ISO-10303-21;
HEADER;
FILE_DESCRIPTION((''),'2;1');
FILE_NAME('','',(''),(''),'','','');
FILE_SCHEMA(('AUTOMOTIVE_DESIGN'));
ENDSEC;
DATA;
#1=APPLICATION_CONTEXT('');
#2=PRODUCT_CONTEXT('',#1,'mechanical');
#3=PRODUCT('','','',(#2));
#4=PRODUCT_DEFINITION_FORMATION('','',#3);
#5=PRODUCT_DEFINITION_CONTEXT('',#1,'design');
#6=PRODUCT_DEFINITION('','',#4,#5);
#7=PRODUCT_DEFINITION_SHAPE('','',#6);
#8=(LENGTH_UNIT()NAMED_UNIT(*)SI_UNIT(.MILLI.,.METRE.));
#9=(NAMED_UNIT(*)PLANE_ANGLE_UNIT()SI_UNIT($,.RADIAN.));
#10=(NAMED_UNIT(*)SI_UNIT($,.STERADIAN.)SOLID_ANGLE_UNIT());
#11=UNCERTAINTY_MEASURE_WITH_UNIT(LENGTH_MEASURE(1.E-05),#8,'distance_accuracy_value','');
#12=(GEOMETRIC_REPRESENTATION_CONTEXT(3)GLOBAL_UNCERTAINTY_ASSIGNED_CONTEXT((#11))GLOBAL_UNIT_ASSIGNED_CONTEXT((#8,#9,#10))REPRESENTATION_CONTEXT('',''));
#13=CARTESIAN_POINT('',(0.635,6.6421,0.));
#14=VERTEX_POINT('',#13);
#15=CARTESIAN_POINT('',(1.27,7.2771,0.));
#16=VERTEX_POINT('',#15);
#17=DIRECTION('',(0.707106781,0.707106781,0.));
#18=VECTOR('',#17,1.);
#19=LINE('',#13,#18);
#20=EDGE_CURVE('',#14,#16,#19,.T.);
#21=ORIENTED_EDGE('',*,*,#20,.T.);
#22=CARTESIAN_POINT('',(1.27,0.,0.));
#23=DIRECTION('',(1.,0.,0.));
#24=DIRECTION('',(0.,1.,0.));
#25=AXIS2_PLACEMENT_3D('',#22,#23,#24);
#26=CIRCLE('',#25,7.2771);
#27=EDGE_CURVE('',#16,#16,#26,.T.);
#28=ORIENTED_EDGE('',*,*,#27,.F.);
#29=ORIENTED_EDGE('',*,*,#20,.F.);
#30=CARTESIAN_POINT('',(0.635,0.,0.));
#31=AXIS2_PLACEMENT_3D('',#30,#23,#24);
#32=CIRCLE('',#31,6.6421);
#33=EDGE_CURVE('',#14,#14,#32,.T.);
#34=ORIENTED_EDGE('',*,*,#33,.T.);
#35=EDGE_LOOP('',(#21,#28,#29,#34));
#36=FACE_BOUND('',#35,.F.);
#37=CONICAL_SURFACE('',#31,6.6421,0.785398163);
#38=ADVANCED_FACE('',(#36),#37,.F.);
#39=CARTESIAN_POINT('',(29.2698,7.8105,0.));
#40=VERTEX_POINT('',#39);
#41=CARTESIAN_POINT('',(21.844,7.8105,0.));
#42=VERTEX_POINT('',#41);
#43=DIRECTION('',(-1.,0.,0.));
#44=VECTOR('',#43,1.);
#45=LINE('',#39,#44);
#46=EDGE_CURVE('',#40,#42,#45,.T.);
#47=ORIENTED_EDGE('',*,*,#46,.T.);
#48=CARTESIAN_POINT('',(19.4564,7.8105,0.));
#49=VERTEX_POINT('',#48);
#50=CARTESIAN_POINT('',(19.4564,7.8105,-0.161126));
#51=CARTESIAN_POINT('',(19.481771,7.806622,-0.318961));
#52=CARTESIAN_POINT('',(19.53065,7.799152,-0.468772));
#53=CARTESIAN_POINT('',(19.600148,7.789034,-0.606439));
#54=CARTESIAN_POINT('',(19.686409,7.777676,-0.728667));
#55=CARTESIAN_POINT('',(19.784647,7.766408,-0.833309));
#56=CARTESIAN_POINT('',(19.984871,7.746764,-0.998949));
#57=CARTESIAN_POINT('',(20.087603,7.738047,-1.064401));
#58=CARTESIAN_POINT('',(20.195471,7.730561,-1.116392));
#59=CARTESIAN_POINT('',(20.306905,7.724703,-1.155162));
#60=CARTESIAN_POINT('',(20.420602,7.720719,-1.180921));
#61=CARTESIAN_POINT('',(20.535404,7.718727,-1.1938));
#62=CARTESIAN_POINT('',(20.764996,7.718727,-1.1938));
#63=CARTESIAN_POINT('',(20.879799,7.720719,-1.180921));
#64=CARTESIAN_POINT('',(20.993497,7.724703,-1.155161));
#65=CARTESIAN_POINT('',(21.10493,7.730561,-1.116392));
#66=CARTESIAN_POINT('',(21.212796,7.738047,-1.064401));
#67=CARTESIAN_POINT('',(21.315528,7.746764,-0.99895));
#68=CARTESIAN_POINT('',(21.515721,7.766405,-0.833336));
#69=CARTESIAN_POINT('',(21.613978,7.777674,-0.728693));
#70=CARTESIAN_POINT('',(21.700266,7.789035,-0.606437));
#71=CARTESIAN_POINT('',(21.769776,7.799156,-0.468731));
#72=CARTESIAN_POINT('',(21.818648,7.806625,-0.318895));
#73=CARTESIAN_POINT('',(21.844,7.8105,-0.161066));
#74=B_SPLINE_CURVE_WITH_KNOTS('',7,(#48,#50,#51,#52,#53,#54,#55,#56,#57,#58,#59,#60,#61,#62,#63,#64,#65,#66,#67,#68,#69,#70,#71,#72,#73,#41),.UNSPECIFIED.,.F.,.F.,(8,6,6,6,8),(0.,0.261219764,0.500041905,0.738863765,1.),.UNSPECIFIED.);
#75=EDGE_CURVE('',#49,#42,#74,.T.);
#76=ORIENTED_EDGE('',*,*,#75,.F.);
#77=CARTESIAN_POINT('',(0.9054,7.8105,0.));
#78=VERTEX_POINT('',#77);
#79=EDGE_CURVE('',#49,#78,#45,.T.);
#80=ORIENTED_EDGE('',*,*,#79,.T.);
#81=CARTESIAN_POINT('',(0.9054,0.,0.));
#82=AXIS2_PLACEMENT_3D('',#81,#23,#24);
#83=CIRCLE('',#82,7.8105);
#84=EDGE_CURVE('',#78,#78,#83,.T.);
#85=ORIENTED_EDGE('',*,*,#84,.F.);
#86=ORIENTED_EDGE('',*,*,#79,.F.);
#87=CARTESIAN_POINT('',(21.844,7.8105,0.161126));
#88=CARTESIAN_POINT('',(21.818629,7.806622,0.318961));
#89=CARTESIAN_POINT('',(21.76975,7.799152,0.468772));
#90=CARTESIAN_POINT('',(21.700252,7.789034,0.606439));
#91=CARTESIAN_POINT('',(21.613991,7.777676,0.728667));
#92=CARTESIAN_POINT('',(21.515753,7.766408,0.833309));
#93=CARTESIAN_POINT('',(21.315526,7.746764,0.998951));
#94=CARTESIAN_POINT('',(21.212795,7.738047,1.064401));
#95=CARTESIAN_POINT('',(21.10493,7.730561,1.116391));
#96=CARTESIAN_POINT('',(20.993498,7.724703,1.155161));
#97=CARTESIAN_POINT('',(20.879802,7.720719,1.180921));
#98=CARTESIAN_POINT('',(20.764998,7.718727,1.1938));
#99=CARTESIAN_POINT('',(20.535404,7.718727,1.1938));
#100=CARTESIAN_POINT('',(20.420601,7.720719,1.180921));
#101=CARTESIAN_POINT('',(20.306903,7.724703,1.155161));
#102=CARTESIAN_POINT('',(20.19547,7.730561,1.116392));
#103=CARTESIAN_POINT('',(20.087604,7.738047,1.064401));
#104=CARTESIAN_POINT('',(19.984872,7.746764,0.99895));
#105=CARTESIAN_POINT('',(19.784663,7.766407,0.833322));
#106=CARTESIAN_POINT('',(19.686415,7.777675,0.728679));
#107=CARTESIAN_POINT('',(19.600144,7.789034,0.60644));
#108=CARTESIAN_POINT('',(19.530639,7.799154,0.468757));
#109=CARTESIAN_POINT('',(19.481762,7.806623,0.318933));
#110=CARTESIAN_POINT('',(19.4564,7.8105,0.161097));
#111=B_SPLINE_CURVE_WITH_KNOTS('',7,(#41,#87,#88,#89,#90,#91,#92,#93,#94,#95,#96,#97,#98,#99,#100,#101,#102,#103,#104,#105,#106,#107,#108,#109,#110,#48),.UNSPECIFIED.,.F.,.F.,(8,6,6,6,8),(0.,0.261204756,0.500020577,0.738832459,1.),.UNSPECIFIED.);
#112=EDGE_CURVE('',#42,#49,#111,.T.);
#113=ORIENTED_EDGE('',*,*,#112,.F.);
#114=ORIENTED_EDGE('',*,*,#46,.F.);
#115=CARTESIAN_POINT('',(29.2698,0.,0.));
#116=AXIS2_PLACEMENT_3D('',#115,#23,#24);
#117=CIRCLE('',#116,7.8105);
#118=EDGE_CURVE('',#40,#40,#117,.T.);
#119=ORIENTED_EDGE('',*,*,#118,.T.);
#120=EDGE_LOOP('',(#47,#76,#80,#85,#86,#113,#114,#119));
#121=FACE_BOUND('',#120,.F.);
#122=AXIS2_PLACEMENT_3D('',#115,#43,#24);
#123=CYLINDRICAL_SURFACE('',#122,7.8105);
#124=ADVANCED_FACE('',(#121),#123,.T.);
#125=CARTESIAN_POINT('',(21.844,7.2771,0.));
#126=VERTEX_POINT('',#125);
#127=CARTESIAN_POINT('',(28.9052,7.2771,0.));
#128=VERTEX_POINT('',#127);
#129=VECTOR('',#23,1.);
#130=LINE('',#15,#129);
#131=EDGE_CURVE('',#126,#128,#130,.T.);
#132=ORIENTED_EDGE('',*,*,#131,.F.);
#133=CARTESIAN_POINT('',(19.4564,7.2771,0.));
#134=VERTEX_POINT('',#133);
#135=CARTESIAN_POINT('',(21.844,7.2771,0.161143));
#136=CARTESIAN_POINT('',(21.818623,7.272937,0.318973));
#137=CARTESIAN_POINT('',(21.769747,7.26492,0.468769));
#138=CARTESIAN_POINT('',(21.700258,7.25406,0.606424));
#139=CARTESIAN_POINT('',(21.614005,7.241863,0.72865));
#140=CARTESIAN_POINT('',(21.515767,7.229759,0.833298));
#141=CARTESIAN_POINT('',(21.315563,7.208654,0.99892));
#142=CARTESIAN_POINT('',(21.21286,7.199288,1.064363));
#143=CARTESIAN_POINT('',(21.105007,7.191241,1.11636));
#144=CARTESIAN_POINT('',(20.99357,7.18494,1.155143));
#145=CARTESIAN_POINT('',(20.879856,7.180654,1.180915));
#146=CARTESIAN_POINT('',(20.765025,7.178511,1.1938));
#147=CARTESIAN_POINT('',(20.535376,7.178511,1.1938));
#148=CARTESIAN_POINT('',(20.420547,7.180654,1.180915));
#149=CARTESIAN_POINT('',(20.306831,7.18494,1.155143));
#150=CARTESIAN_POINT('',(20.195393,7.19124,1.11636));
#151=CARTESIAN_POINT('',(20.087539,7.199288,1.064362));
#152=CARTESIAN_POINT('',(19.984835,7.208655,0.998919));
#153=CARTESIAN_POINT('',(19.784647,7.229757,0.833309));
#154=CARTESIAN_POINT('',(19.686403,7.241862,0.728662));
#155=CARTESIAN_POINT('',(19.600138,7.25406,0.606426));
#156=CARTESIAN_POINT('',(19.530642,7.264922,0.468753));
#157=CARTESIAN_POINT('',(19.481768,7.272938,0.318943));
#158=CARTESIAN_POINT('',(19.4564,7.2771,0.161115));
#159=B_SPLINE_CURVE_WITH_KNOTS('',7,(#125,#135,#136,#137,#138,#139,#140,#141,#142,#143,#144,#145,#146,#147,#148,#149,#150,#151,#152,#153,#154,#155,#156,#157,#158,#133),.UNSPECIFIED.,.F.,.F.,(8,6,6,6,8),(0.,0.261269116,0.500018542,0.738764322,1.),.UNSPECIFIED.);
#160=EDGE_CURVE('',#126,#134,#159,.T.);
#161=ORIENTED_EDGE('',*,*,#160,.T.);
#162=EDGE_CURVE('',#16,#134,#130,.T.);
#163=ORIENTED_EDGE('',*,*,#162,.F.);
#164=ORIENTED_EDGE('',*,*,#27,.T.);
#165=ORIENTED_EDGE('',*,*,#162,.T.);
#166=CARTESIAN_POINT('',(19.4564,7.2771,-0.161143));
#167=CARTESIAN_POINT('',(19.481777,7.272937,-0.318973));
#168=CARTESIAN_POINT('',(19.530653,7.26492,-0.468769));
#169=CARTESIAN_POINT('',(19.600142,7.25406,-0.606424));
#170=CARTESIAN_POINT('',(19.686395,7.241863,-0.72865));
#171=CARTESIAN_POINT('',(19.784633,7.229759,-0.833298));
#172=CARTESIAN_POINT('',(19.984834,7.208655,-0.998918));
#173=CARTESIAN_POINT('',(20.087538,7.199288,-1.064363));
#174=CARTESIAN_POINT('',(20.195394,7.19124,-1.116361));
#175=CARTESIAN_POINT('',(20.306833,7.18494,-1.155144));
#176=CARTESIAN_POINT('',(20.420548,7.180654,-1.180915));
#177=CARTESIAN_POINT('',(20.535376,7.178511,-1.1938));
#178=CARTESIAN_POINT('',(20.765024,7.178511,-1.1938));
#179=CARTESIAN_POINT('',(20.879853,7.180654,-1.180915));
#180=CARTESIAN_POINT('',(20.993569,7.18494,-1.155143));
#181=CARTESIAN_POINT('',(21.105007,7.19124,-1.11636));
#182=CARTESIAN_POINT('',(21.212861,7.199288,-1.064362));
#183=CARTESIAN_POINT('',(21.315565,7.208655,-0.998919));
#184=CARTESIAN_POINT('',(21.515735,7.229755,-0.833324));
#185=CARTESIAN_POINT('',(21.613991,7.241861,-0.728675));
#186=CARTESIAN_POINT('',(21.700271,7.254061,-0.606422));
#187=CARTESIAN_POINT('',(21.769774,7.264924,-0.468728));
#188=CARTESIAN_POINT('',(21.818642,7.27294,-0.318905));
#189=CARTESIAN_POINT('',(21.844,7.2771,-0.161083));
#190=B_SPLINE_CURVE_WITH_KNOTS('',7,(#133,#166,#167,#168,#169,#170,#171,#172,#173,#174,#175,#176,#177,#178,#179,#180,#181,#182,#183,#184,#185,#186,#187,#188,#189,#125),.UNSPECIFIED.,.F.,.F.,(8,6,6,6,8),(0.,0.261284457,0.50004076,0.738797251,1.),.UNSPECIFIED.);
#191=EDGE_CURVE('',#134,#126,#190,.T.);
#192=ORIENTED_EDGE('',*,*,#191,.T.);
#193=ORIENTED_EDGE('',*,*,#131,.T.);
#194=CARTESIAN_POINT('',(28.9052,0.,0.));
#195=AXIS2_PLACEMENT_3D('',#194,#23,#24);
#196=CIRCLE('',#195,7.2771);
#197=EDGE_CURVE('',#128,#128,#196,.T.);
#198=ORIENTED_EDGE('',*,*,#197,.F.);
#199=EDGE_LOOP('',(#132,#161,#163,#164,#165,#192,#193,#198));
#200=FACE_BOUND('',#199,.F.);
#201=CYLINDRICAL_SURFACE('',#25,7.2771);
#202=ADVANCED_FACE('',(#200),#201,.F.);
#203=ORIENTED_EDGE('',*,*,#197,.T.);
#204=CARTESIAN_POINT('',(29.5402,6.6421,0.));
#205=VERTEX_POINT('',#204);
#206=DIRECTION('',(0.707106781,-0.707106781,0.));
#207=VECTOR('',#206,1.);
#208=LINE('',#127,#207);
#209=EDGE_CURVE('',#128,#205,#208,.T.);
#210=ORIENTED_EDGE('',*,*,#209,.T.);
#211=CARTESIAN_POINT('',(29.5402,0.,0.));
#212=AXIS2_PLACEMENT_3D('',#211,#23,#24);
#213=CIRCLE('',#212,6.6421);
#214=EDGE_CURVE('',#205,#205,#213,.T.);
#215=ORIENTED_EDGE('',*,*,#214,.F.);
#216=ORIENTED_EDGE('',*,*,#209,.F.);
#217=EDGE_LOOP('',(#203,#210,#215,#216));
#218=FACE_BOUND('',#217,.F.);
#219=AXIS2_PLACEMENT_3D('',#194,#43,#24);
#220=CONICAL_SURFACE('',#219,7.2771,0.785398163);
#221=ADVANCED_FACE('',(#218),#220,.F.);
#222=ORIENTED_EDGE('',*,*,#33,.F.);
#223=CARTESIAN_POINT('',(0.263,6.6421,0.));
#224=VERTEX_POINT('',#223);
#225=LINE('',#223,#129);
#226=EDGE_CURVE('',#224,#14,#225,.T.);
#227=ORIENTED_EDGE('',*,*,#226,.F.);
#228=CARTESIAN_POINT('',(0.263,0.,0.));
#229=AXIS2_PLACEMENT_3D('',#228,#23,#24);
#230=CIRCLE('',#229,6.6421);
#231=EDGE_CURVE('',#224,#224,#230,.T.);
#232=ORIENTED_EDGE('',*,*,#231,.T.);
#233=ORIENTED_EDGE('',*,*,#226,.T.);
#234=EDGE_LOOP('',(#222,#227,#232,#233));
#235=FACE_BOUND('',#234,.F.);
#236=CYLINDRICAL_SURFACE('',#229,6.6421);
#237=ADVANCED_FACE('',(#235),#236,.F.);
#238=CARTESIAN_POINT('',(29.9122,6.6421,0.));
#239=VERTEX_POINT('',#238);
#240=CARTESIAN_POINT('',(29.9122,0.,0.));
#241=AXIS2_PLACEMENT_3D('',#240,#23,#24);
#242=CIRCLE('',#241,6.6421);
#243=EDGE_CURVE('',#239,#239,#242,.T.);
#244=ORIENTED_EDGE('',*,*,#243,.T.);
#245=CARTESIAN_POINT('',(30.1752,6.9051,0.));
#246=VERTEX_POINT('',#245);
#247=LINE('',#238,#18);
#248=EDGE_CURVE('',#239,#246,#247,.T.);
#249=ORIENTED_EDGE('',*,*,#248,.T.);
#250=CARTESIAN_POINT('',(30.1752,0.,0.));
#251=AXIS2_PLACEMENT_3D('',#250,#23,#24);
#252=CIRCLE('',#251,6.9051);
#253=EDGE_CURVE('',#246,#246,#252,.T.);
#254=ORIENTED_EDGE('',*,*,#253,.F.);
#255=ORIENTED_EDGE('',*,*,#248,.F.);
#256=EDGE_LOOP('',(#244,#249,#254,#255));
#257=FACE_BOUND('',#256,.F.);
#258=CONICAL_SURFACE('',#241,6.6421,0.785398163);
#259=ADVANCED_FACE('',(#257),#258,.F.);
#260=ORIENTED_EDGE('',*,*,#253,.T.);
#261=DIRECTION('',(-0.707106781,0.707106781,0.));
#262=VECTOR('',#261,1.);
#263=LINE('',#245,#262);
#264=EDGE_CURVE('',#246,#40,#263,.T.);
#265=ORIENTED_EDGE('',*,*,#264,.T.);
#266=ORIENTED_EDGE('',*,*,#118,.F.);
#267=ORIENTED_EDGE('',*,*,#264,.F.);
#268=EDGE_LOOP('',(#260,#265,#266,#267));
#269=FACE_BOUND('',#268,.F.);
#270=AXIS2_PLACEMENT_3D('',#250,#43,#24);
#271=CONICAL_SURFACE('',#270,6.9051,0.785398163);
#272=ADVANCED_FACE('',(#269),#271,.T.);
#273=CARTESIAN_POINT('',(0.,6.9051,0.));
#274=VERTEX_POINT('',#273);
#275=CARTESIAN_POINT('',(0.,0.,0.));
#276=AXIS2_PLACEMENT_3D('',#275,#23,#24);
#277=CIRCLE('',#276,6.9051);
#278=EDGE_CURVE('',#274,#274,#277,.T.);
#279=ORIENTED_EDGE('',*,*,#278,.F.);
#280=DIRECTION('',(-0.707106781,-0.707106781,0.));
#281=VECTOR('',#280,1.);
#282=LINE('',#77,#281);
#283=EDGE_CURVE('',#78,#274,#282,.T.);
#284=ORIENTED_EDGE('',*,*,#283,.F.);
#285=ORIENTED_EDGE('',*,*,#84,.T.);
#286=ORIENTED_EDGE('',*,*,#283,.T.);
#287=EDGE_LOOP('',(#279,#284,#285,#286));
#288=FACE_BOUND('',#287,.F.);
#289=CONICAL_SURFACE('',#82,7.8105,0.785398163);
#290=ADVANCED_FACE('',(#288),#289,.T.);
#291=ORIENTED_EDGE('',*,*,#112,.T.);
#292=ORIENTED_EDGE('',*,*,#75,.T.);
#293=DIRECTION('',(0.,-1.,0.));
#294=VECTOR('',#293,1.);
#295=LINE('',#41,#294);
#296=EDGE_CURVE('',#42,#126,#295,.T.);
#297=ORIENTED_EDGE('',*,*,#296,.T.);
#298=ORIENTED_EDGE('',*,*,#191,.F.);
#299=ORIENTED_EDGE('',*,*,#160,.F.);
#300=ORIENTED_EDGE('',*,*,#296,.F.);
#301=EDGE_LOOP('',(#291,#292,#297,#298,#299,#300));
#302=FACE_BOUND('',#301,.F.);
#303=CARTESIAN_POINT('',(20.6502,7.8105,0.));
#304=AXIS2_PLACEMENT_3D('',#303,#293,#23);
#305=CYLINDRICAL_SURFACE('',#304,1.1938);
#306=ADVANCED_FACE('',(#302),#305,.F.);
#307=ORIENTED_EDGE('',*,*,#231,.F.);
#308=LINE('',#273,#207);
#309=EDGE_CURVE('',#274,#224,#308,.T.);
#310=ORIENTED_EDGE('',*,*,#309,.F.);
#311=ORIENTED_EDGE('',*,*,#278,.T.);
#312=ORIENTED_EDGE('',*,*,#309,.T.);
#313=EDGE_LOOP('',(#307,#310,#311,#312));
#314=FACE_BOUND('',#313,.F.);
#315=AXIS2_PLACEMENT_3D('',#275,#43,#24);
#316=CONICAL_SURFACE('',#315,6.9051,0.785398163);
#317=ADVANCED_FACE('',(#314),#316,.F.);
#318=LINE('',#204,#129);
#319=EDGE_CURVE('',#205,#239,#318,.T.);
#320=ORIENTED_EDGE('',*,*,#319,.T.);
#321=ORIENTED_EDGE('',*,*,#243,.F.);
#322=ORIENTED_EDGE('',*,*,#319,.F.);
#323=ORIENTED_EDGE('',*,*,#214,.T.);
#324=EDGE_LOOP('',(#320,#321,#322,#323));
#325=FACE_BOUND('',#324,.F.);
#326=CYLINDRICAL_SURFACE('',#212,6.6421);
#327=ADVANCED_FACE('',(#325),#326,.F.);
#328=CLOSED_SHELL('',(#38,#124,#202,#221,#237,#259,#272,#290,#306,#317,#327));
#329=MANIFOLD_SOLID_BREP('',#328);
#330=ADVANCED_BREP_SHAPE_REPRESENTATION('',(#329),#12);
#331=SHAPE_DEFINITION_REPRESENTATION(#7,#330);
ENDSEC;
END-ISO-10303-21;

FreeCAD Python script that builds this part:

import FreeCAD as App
import Part
import Sketcher
from FreeCAD import Vector
Q = App.Units.Quantity

doc = App.newDocument("Part")
body = doc.addObject("PartDesign::Body", "Body")

# Sketch on XY plane
sketch1 = body.newObject("Sketcher::SketchObject", "Sketch")
sketch1.AttachmentSupport = (doc.getObject("XY_Plane"), [""])
sketch1.MapMode = "FlatFace"
sketch1.addGeometry([
    Part.LineSegment(Vector(0.91, 7.81, 0), Vector(0, 6.91, 0)),  # 0
    Part.LineSegment(Vector(0, 6.91, 0), Vector(0.26, 6.64, 0)),  # 1
    Part.LineSegment(Vector(0.26, 6.64, 0), Vector(0.64, 6.64, 0)),  # 2
    Part.LineSegment(Vector(0.64, 6.64, 0), Vector(1.27, 7.28, 0)),  # 3
    Part.LineSegment(Vector(1.27, 7.28, 0), Vector(28.91, 7.28, 0)),  # 4
    Part.LineSegment(Vector(28.91, 7.28, 0), Vector(29.54, 6.64, 0)),  # 5
    Part.LineSegment(Vector(29.54, 6.64, 0), Vector(29.91, 6.64, 0)),  # 6
    Part.LineSegment(Vector(29.91, 6.64, 0), Vector(30.18, 6.91, 0)),  # 7
    Part.LineSegment(Vector(30.18, 6.91, 0), Vector(29.27, 7.81, 0)),  # 8
    Part.LineSegment(Vector(29.27, 7.81, 0), Vector(0.91, 7.81, 0)),  # 9
], False)
sketch1.addConstraint([
    Sketcher.Constraint("Coincident", 0, 2, 1, 1),
    Sketcher.Constraint("Coincident", 1, 2, 2, 1),
    Sketcher.Constraint("Coincident", 2, 2, 3, 1),
    Sketcher.Constraint("Coincident", 3, 2, 4, 1),
    Sketcher.Constraint("Coincident", 4, 2, 5, 1),
    Sketcher.Constraint("Coincident", 5, 2, 6, 1),
    Sketcher.Constraint("Coincident", 6, 2, 7, 1),
    Sketcher.Constraint("Coincident", 7, 2, 8, 1),
    Sketcher.Constraint("Coincident", 8, 2, 9, 1),
    Sketcher.Constraint("Coincident", 9, 2, 0, 1),
    Sketcher.Constraint("Horizontal", 2),
    Sketcher.Constraint("Horizontal", 4),
    Sketcher.Constraint("Horizontal", 6),
    Sketcher.Constraint("Horizontal", 9),
    Sketcher.Constraint("PointOnObject", 0, 2, -2),
    Sketcher.Constraint("Perpendicular", 0, 1),
    Sketcher.Constraint("Perpendicular", 1, 3),
    Sketcher.Constraint("Perpendicular", 3, 5),
    Sketcher.Constraint("Perpendicular", 5, 7),
    Sketcher.Constraint("Perpendicular", 7, 8),
    Sketcher.Constraint("Horizontal", 2, 2, 5, 2),
    Sketcher.Constraint("Horizontal", 0, 2, 7, 2),
    Sketcher.Constraint("Equal", 2, 6),
    Sketcher.Constraint("Equal", 3, 5),
    Sketcher.Constraint("DistanceX", 4, 1, 4, 2, Q("1.088 in")),
    Sketcher.Constraint("DistanceX", -1, 1, 3, 2, Q("0.05 in")),
    Sketcher.Constraint("DistanceX", 9, 2, 9, 1, Q("1.1167 in")),
    Sketcher.Constraint("DistanceX", -1, 1, 2, 2, Q("0.025 in")),
    Sketcher.Constraint("DistanceY", 4, 2, 8, 2, Q("0.021 in")),
    Sketcher.Constraint("DistanceY", -1, 1, 1, 2, Q("0.2615 in")),
])
revolution = body.newObject("PartDesign::Revolution", "Revolution")
revolution.Profile = sketch1
revolution.ReferenceAxis = (sketch1, ["H_Axis"])
revolution.Angle = 360

# Sketch on XY plane
sketch2 = body.newObject("Sketcher::SketchObject", "Sketch001")
sketch2.AttachmentSupport = (doc.getObject("XY_Plane"), [""])
sketch2.MapMode = "FlatFace"
sketch2.addGeometry([
    Part.LineSegment(Vector(20.7, 7.8, 0), Vector(20.7, 0, 0)),
    Part.LineSegment(Vector(20.7, 0, 0), Vector(21.8, 0, 0)),
    Part.LineSegment(Vector(21.8, 0, 0), Vector(21.8, 7.8, 0)),
    Part.LineSegment(Vector(21.8, 7.8, 0), Vector(20.7, 7.8, 0)),
], False)
sketch2.addGeometry(Part.LineSegment(Vector(20.7, 7.8, 0), Vector(20.7, 0, 0)), True)  # axis
sketch2.addConstraint([
    Sketcher.Constraint("Coincident", 0, 2, 1, 1),
    Sketcher.Constraint("Coincident", 1, 2, 2, 1),
    Sketcher.Constraint("Coincident", 2, 2, 3, 1),
    Sketcher.Constraint("Coincident", 3, 2, 0, 1),
    Sketcher.Constraint("Vertical", 0),
    Sketcher.Constraint("Horizontal", 1),
    Sketcher.Constraint("Vertical", 2),
    Sketcher.Constraint("Horizontal", 3),
    Sketcher.Constraint("Vertical", 4),
    Sketcher.Constraint("Coincident", 4, 1, 3, 2),
    Sketcher.Constraint("PointOnObject", 0, 2, -1),
    Sketcher.Constraint("PointOnObject", 4, 2, -1),
    Sketcher.Constraint("DistanceX", 1, 1, 1, 2, Q("0.047 in")),
    Sketcher.Constraint("DistanceX", -1, 1, 1, 2, Q("0.86 in")),
    Sketcher.Constraint("DistanceY", 0, 2, 0, 1, Q("0.3075 in")),
])
groove = body.newObject("PartDesign::Groove", "Groove")
groove.Profile = sketch2
groove.ReferenceAxis = (sketch2, ["Axis0"])
groove.Angle = 360

doc.recompute()
